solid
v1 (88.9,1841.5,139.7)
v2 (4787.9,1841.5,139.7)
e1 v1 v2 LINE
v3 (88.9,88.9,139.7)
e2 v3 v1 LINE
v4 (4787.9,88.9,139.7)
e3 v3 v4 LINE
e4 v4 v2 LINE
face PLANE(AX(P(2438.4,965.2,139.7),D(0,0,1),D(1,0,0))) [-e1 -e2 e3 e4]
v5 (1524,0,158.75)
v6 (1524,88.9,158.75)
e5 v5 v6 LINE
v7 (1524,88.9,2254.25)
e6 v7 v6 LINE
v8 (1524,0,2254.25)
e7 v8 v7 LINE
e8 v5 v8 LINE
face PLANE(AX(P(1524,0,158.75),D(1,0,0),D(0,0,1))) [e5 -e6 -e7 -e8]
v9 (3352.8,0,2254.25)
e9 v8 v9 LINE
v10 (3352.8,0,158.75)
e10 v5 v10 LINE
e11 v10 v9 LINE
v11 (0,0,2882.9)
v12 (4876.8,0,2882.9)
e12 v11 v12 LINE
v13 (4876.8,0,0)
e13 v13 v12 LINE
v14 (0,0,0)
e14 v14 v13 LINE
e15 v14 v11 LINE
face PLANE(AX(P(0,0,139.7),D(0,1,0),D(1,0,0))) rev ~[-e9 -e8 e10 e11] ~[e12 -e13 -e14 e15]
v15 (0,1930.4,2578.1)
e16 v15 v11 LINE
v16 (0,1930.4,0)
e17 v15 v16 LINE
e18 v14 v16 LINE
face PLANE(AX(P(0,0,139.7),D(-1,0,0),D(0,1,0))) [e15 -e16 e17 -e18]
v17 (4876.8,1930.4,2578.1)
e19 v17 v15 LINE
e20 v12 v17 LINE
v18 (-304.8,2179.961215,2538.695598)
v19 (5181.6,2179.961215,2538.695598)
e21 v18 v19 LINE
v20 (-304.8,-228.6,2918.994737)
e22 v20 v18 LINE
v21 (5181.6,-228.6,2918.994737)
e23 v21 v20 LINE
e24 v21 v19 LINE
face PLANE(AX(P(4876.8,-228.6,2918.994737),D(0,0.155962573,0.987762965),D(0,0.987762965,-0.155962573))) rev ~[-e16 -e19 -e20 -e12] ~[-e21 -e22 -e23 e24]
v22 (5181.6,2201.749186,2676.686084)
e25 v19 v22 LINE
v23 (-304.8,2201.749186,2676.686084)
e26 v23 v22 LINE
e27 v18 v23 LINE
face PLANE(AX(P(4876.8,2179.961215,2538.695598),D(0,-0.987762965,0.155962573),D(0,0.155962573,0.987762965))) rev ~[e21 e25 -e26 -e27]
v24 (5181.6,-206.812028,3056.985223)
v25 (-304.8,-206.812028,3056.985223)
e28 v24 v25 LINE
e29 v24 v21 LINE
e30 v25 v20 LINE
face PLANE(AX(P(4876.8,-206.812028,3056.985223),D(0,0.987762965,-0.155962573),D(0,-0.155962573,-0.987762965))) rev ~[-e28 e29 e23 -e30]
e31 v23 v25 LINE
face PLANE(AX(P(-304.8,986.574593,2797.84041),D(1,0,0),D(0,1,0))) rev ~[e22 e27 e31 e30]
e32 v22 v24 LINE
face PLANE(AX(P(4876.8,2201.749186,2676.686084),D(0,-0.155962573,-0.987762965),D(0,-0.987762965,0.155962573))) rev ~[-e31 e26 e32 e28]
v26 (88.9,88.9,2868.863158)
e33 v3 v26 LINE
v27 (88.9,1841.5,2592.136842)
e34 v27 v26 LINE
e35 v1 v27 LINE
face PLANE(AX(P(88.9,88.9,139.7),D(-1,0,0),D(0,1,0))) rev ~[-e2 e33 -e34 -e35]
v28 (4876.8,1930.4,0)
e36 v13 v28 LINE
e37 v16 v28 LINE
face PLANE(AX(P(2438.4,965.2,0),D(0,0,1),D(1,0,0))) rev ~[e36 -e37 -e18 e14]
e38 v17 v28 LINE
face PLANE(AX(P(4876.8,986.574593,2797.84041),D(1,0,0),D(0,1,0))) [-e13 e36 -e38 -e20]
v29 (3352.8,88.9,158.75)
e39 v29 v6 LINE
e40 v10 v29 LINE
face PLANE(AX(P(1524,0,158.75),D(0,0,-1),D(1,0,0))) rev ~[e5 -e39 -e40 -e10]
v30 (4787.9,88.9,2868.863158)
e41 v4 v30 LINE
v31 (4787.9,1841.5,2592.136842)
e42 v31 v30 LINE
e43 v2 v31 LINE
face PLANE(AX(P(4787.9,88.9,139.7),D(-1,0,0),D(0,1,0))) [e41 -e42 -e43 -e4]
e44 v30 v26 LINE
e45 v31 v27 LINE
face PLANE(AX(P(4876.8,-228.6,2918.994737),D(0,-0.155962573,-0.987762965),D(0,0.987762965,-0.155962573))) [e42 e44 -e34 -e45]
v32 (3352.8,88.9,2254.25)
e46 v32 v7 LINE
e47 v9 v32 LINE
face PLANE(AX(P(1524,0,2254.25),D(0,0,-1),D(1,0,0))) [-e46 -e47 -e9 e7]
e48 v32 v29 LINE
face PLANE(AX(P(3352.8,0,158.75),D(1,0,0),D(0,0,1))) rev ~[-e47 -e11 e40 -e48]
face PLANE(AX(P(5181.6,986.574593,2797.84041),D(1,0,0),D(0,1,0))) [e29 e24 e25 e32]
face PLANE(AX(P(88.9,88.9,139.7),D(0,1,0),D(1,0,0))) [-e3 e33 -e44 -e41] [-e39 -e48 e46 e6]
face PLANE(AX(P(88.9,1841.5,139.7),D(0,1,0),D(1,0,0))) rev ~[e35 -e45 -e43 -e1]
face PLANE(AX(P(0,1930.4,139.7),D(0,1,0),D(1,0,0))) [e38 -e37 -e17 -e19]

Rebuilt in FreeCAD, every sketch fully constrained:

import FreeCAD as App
import Part
import Sketcher

V = App.Vector
Q = App.Units.Quantity


def add_polygon(sketch, points):
    """Adds a closed chain of lines whose ends are joined by coincident constraints."""
    first, n = sketch.GeometryCount, len(points)
    for a, b in zip(points, points[1:] + points[:1]):
        sketch.addGeometry(Part.LineSegment(App.Vector(*a, 0), App.Vector(*b, 0)), False)
    for i in range(n):
        sketch.addConstraint(Sketcher.Constraint("Coincident", first + i, 2, first + (i + 1) % n, 1))

doc = App.newDocument("Part")
params = doc.addObject("Spreadsheet::Sheet", "Params")
for row, (alias, value) in enumerate([
    ("sketch1_width", "192 in"),
    ("sketch1_height", "76 in"),
    ("pad1_length", "5.5 in"),
    ("sketch2_width", "192 in"),
    ("sketch2_width2", "185 in"),
    ("sketch2_height", "76 in"),
    ("sketch2_height2", "69 in"),
    ("pad2_length", "108 in"),
    ("sketch3_width", "76 in"),
    ("sketch3_height", "12 in"),
    ("sketch4_length", "96 in"),
    ("sketch4_length2", "5.5 in"),
    ("pad3_length", "204 in"),
    ("pad3_length2", "12 in"),
    ("sketch5_width", "72 in"),
    ("sketch5_height", "82.5 in"),
    ("pocket2_length", "12 in"),
], start=1):
    params.set(f"A{row}", alias)
    params.set(f"B{row}", "=" + value)
    params.setAlias(f"B{row}", alias)

body = doc.addObject("PartDesign::Body", "Body")

# Sketch on XY plane
sketch1 = doc.addObject("Sketcher::SketchObject", "Sketch")
body.addObject(sketch1)
sketch1.AttachmentSupport = (doc.XY_Plane, [""])
sketch1.MapMode = "FlatFace"
add_polygon(sketch1, [(0, 1930.4), (0, 0), (4876.8, 0), (4876.8, 1930.4)])  # lines 0-3
sketch1.addConstraint([
    Sketcher.Constraint("Vertical", 0),
    Sketcher.Constraint("Horizontal", 1),
    Sketcher.Constraint("Vertical", 2),
    Sketcher.Constraint("Horizontal", 3),
    Sketcher.Constraint("Coincident", 0, 2, -1, 1),
    Sketcher.Constraint("DistanceX", 1, 1, 1, 2, Q("192 in")),
    Sketcher.Constraint("DistanceY", 0, 2, 0, 1, Q("76 in")),
])
sketch1.setExpression("Constraints[9]", "Params.sketch1_width")
sketch1.setExpression("Constraints[10]", "Params.sketch1_height")
pad1 = doc.addObject("PartDesign::Pad", "Pad")
body.addObject(pad1)
pad1.Profile = sketch1
pad1.setExpression("Length", "Params.pad1_length")

# Sketch on XY plane
sketch2 = doc.addObject("Sketcher::SketchObject", "Sketch001")
body.addObject(sketch2)
sketch2.AttachmentSupport = (doc.XY_Plane, [""])
sketch2.MapMode = "FlatFace"
sketch2.AttachmentOffset = App.Placement(V(0, 0, 5.5 * 25.4), App.Rotation())
add_polygon(sketch2, [(0, 1930.4), (0, 0), (4876.8, 0), (4876.8, 1930.4)])  # lines 0-3
add_polygon(sketch2, [(4787.9, 88.9), (88.9, 88.9), (88.9, 1841.5), (4787.9, 1841.5)])  # lines 4-7
sketch2.addConstraint([
    Sketcher.Constraint("Vertical", 0),
    Sketcher.Constraint("Horizontal", 1),
    Sketcher.Constraint("Vertical", 2),
    Sketcher.Constraint("Horizontal", 3),
    Sketcher.Constraint("Horizontal", 4),
    Sketcher.Constraint("Vertical", 5),
    Sketcher.Constraint("Horizontal", 6),
    Sketcher.Constraint("Vertical", 7),
    Sketcher.Constraint("Coincident", 0, 2, -1, 1),
    Sketcher.Constraint("DistanceX", 1, 1, 1, 2, Q("192 in")),
    Sketcher.Constraint("DistanceX", 4, 2, 4, 1, Q("185 in")),
    Sketcher.Constraint("DistanceY", 0, 2, 0, 1, Q("76 in")),
    Sketcher.Constraint("DistanceY", 5, 1, 5, 2, Q("69 in")),
    Sketcher.Constraint("DistanceX", -1, 1, 4, 2, Q("3.5 in")),
    Sketcher.Constraint("DistanceY", -1, 1, 4, 2, Q("3.5 in")),
])
sketch2.setExpression("Constraints[17]", "Params.sketch2_width")
sketch2.setExpression("Constraints[18]", "Params.sketch2_width2")
sketch2.setExpression("Constraints[19]", "Params.sketch2_height")
sketch2.setExpression("Constraints[20]", "Params.sketch2_height2")
pad2 = doc.addObject("PartDesign::Pad", "Pad001")
body.addObject(pad2)
pad2.Profile = sketch2
pad2.setExpression("Length", "Params.pad2_length")

# Sketch on YZ plane
sketch3 = doc.addObject("Sketcher::SketchObject", "Sketch002")
body.addObject(sketch3)
sketch3.AttachmentSupport = (doc.YZ_Plane, [""])
sketch3.MapMode = "FlatFace"
sketch3.AttachmentOffset = App.Placement(V(0, 0, 192 * 25.4), App.Rotation())
add_polygon(sketch3, [(1930.4, 2578.1), (1930.4, 2882.9), (0, 2882.9)])  # lines 0-2
sketch3.addConstraint([
    Sketcher.Constraint("Vertical", 0),
    Sketcher.Constraint("Horizontal", 1),
    Sketcher.Constraint("PointOnObject", 1, 2, -2),
    Sketcher.Constraint("DistanceX", 1, 2, 1, 1, Q("76 in")),
    Sketcher.Constraint("DistanceY", 0, 1, 0, 2, Q("12 in")),
    Sketcher.Constraint("DistanceY", -1, 1, 0, 2, Q("113.5 in")),
])
sketch3.setExpression("Constraints[6]", "Params.sketch3_width")
sketch3.setExpression("Constraints[7]", "Params.sketch3_height")
pocket1 = doc.addObject("PartDesign::Pocket", "Pocket")
body.addObject(pocket1)
pocket1.Profile = sketch3
pocket1.Type = "ThroughAll"

# Sketch on YZ plane
sketch4 = doc.addObject("Sketcher::SketchObject", "Sketch003")
body.addObject(sketch4)
sketch4.AttachmentSupport = (doc.YZ_Plane, [""])
sketch4.MapMode = "FlatFace"
sketch4.AttachmentOffset = App.Placement(V(0, 0, 192 * 25.4), App.Rotation())
add_polygon(sketch4, [(-228.6, 2918.994737), (2179.961215, 2538.695598), (2201.749186, 2676.686084), (-206.812028, 3056.985223)])  # lines 0-3
sketch4.addConstraint([
    Sketcher.Constraint("Perpendicular", 0, 1),
    Sketcher.Constraint("Perpendicular", 1, 2),
    Sketcher.Constraint("Perpendicular", 2, 3),
    Sketcher.Constraint("Distance", 0, Q("96 in")),
    Sketcher.Constraint("DistanceX", 3, 2, -1, 1, Q("9 in")),
    Sketcher.Constraint("Distance", 1, Q("5.5 in")),
    Sketcher.Constraint("DistanceX", 2, 2, -1, 1, 206.812028),
    Sketcher.Constraint("DistanceY", -1, 1, 0, 2, 2538.695598),
])
sketch4.setExpression("Constraints[7]", "Params.sketch4_length")
sketch4.setExpression("Constraints[9]", "Params.sketch4_length2")
pad3 = doc.addObject("PartDesign::Pad", "Pad002")
body.addObject(pad3)
pad3.Profile = sketch4
pad3.Type = "TwoLengths"
pad3.setExpression("Length", "Params.pad3_length")
pad3.setExpression("Length2", "Params.pad3_length2")
pad3.Reversed = True

# Sketch on XZ plane
sketch5 = doc.addObject("Sketcher::SketchObject", "Sketch004")
body.addObject(sketch5)
sketch5.AttachmentSupport = (doc.XZ_Plane, [""])
sketch5.MapMode = "FlatFace"
add_polygon(sketch5, [(1524, 2254.25), (1524, 158.75), (3352.8, 158.75), (3352.8, 2254.25)])  # lines 0-3
sketch5.addConstraint([
    Sketcher.Constraint("Vertical", 0),
    Sketcher.Constraint("Horizontal", 1),
    Sketcher.Constraint("Vertical", 2),
    Sketcher.Constraint("Horizontal", 3),
    Sketcher.Constraint("DistanceX", 1, 1, 1, 2, Q("72 in")),
    Sketcher.Constraint("DistanceY", 0, 2, 0, 1, Q("82.5 in")),
    Sketcher.Constraint("DistanceX", -1, 1, 0, 2, Q("60 in")),
    Sketcher.Constraint("DistanceY", -1, 1, 0, 2, Q("6.25 in")),
])
sketch5.setExpression("Constraints[8]", "Params.sketch5_width")
sketch5.setExpression("Constraints[9]", "Params.sketch5_height")
pocket2 = doc.addObject("PartDesign::Pocket", "Pocket001")
body.addObject(pocket2)
pocket2.Profile = sketch5
pocket2.setExpression("Length", "Params.pocket2_length")

doc.recompute()
